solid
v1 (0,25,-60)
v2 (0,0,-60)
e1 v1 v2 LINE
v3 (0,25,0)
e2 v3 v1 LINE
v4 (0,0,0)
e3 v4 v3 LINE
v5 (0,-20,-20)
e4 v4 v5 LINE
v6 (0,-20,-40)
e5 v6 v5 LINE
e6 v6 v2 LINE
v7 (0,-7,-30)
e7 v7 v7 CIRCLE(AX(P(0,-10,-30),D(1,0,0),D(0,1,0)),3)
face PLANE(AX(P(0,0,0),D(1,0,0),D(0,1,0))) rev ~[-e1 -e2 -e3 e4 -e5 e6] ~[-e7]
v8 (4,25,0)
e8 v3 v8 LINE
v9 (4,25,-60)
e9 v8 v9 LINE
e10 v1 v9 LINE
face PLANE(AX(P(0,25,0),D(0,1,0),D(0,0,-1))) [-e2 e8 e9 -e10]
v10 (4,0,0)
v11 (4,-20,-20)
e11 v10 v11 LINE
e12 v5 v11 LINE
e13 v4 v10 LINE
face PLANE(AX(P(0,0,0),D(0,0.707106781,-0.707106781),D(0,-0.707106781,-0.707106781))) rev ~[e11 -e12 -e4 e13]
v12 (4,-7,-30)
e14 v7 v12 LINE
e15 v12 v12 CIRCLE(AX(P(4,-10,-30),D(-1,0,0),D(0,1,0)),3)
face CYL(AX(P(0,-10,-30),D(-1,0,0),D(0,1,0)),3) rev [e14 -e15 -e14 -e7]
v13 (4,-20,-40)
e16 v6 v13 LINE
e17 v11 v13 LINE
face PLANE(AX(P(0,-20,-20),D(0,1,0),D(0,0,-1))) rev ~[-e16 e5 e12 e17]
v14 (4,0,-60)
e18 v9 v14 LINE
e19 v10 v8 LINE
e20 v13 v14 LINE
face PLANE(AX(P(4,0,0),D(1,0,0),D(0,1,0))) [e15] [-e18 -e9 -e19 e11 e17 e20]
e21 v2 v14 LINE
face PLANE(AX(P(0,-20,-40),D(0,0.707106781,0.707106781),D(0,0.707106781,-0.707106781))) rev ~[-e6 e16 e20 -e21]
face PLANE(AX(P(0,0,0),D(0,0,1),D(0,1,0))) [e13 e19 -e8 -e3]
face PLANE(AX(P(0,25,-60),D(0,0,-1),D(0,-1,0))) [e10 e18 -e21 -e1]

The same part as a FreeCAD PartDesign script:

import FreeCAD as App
import Part
import Sketcher

doc = App.newDocument("Part")
body = doc.addObject("PartDesign::Body", "Body")

sketch1 = doc.addObject("Sketcher::SketchObject", "Sketch")
body.addObject(sketch1)
sketch1.AttachmentSupport = (doc.YZ_Plane, [""])
sketch1.MapMode = "FlatFace"
sketch1.addGeometry([
    Part.LineSegment(App.Vector(25, 0, 0), App.Vector(0, 0, 0)),
    Part.LineSegment(App.Vector(0, 0, 0), App.Vector(-20, -20, 0)),
    Part.LineSegment(App.Vector(-20, -20, 0), App.Vector(-20, -40, 0)),
    Part.LineSegment(App.Vector(-20, -40, 0), App.Vector(0, -60, 0)),
    Part.LineSegment(App.Vector(0, -60, 0), App.Vector(25, -60, 0)),
    Part.LineSegment(App.Vector(25, -60, 0), App.Vector(25, 0, 0)),
    Part.Circle(App.Vector(-10, -30, 0), App.Vector(0, 0, 1), 3),
], False)
sketch1.addConstraint([
    Sketcher.Constraint("Coincident", 0, 2, 1, 1),
    Sketcher.Constraint("Coincident", 1, 2, 2, 1),
    Sketcher.Constraint("Coincident", 2, 2, 3, 1),
    Sketcher.Constraint("Coincident", 3, 2, 4, 1),
    Sketcher.Constraint("Coincident", 4, 2, 5, 1),
    Sketcher.Constraint("Coincident", 5, 2, 0, 1),
    Sketcher.Constraint("Horizontal", 0),
    Sketcher.Constraint("Vertical", 2),
    Sketcher.Constraint("Horizontal", 4),
    Sketcher.Constraint("Vertical", 5),
    Sketcher.Constraint("Coincident", 0, 2, -1, 1),
    Sketcher.Constraint("PointOnObject", 3, 2, -2),
    Sketcher.Constraint("Perpendicular", 1, 3),
    Sketcher.Constraint("Equal", 1, 3),
    Sketcher.Constraint("Diameter", 6, 6.0),
    Sketcher.Constraint("DistanceX", 0, 2, 0, 1, 25.0),
    Sketcher.Constraint("DistanceY", 2, 2, 2, 1, 20.0),
    Sketcher.Constraint("DistanceY", 5, 1, 5, 2, 60.0),
    Sketcher.Constraint("DistanceX", 6, 3, -1, 1, 10.0),
    Sketcher.Constraint("DistanceY", 6, 3, -1, 1, 30.0),
])
pad1 = doc.addObject("PartDesign::Pad", "Pad")
body.addObject(pad1)
pad1.Profile = sketch1
pad1.Length = 4

doc.recompute()
